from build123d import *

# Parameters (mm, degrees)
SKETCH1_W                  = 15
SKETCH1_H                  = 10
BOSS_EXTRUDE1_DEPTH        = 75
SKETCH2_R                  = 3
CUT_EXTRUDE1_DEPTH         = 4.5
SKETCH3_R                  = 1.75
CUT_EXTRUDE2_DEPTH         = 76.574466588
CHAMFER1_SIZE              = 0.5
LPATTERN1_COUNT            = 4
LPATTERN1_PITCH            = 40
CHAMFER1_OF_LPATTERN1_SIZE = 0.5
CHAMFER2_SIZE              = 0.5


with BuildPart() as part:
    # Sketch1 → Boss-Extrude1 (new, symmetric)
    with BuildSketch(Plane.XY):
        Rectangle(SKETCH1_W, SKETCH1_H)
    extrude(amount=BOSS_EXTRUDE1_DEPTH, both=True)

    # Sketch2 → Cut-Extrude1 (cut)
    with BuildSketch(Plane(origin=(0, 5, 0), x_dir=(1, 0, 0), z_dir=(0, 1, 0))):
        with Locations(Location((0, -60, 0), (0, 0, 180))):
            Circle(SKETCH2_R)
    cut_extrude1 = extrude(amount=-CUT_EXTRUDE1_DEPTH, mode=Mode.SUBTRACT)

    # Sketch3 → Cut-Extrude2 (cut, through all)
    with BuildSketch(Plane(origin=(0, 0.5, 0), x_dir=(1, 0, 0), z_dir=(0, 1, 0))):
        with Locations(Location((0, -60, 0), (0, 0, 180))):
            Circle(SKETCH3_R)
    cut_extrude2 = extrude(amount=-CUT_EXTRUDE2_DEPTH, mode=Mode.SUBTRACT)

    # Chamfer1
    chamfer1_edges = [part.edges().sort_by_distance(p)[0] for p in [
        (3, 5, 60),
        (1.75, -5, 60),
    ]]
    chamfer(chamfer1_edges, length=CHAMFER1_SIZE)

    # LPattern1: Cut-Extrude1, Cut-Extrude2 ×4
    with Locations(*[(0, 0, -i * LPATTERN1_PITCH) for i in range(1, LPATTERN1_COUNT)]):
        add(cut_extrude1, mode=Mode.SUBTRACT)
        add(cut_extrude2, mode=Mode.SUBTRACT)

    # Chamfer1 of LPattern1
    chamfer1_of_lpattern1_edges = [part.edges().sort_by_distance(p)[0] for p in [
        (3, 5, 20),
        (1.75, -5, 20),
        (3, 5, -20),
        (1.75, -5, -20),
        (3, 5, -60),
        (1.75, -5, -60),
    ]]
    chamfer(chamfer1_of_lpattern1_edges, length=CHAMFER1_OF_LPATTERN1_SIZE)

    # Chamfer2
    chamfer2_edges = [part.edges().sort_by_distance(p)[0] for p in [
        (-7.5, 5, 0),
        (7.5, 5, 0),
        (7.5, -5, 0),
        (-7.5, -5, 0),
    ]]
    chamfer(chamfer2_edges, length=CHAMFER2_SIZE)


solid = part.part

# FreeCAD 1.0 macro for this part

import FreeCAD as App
import Part
import Sketcher

V = App.Vector


def edges_at(feature, points):
    """Names of the edges that pass closest to the given points."""
    edges = feature.Shape.Edges
    near = lambda p: min(range(len(edges)), key=lambda i: edges[i].distToShape(Part.Vertex(*p))[0])
    return sorted({f"Edge{near(p) + 1}" for p in points})


def add_polygon(sketch, points):
    """Adds a closed chain of lines whose ends are joined by coincident constraints."""
    first, n = sketch.GeometryCount, len(points)
    for a, b in zip(points, points[1:] + points[:1]):
        sketch.addGeometry(Part.LineSegment(App.Vector(*a, 0), App.Vector(*b, 0)), False)
    for i in range(n):
        sketch.addConstraint(Sketcher.Constraint("Coincident", first + i, 2, first + (i + 1) % n, 1))

doc = App.newDocument("Part")
body = doc.addObject("PartDesign::Body", "Body")

# Sketch on XY plane
sketch1 = body.newObject("Sketcher::SketchObject", "Sketch")
sketch1.AttachmentSupport = (doc.getObject("XY_Plane"), [""])
sketch1.MapMode = "FlatFace"
add_polygon(sketch1, [(-8, 5), (-8, -5), (8, -5), (8, 5)])  # lines 0-3
sketch1.addConstraint([
    Sketcher.Constraint("Vertical", 0),
    Sketcher.Constraint("Horizontal", 1),
    Sketcher.Constraint("Vertical", 2),
    Sketcher.Constraint("Horizontal", 3),
    Sketcher.Constraint("Symmetric", 0, 2, 2, 2, -1, 1),
    Sketcher.Constraint("DistanceX", 1, 1, 1, 2, 15.0),
    Sketcher.Constraint("DistanceY", 0, 2, 0, 1, 10.0),
])
pad1 = body.newObject("PartDesign::Pad", "Pad")
pad1.Profile = sketch1
pad1.Length = 150
pad1.Midplane = True

# Sketch on XZ plane
sketch2 = body.newObject("Sketcher::SketchObject", "Sketch001")
sketch2.AttachmentSupport = (doc.getObject("XZ_Plane"), [""])
sketch2.MapMode = "FlatFace"
sketch2.AttachmentOffset = App.Placement(V(0, 0, -5), App.Rotation())
sketch2.addGeometry(Part.Circle(V(0, 60, 0), V(0, 0, 1), 3), False)
sketch2.addConstraint([
    Sketcher.Constraint("PointOnObject", 0, 3, -2),
    Sketcher.Constraint("Diameter", 0, 6.0),
    Sketcher.Constraint("DistanceY", -1, 1, 0, 3, 60.0),
])
pocket1 = body.newObject("PartDesign::Pocket", "Pocket")
pocket1.Profile = sketch2
pocket1.Length = 4.5
pocket1.Reversed = True

# Sketch on XZ plane
sketch3 = body.newObject("Sketcher::SketchObject", "Sketch002")
sketch3.AttachmentSupport = (doc.getObject("XZ_Plane"), [""])
sketch3.MapMode = "FlatFace"
sketch3.AttachmentOffset = App.Placement(V(0, 0, -0.5), App.Rotation())
sketch3.addGeometry(Part.Circle(V(0, 60, 0), V(0, 0, 1), 1.8), False)
sketch3.addConstraint([
    Sketcher.Constraint("PointOnObject", 0, 3, -2),
    Sketcher.Constraint("Diameter", 0, 3.5),
    Sketcher.Constraint("DistanceY", -1, 1, 0, 3, 60.0),
])
pocket2 = body.newObject("PartDesign::Pocket", "Pocket001")
pocket2.Profile = sketch3
pocket2.Type = "ThroughAll"
pocket2.Reversed = True
doc.recompute()

chamfer = body.newObject("PartDesign::Chamfer", "Chamfer")
chamfer.Base = (pocket2, edges_at(pocket2, [(3, 5, 60), (1.75, -5, 60)]))
chamfer.Size = 0.5
doc.recompute()

linearpattern = body.newObject("PartDesign::LinearPattern", "LinearPattern")
linearpattern.Originals = [pocket1, pocket2]
linearpattern.Direction = (doc.getObject("Z_Axis"), [""])
linearpattern.Mode = "offset"
linearpattern.Offset = 40
linearpattern.Occurrences = 4
linearpattern.Reversed = True
body.Tip = linearpattern
doc.recompute()

chamfer2 = body.newObject("PartDesign::Chamfer", "Chamfer001")
chamfer2.Base = (linearpattern, edges_at(linearpattern, [
    (3, 5, 20),
    (1.75, -5, 20),
    (3, 5, -20),
    (1.75, -5, -20),
    (3, 5, -60),
    (1.75, -5, -60),
]))
chamfer2.Size = 0.5
doc.recompute()

chamfer3 = body.newObject("PartDesign::Chamfer", "Chamfer002")
chamfer3.Base = (chamfer2, edges_at(chamfer2, [
    (-7.5, 5, 0),
    (7.5, 5, 0),
    (7.5, -5, 0),
    (-7.5, -5, 0),
]))
chamfer3.Size = 0.5

doc.recompute()
